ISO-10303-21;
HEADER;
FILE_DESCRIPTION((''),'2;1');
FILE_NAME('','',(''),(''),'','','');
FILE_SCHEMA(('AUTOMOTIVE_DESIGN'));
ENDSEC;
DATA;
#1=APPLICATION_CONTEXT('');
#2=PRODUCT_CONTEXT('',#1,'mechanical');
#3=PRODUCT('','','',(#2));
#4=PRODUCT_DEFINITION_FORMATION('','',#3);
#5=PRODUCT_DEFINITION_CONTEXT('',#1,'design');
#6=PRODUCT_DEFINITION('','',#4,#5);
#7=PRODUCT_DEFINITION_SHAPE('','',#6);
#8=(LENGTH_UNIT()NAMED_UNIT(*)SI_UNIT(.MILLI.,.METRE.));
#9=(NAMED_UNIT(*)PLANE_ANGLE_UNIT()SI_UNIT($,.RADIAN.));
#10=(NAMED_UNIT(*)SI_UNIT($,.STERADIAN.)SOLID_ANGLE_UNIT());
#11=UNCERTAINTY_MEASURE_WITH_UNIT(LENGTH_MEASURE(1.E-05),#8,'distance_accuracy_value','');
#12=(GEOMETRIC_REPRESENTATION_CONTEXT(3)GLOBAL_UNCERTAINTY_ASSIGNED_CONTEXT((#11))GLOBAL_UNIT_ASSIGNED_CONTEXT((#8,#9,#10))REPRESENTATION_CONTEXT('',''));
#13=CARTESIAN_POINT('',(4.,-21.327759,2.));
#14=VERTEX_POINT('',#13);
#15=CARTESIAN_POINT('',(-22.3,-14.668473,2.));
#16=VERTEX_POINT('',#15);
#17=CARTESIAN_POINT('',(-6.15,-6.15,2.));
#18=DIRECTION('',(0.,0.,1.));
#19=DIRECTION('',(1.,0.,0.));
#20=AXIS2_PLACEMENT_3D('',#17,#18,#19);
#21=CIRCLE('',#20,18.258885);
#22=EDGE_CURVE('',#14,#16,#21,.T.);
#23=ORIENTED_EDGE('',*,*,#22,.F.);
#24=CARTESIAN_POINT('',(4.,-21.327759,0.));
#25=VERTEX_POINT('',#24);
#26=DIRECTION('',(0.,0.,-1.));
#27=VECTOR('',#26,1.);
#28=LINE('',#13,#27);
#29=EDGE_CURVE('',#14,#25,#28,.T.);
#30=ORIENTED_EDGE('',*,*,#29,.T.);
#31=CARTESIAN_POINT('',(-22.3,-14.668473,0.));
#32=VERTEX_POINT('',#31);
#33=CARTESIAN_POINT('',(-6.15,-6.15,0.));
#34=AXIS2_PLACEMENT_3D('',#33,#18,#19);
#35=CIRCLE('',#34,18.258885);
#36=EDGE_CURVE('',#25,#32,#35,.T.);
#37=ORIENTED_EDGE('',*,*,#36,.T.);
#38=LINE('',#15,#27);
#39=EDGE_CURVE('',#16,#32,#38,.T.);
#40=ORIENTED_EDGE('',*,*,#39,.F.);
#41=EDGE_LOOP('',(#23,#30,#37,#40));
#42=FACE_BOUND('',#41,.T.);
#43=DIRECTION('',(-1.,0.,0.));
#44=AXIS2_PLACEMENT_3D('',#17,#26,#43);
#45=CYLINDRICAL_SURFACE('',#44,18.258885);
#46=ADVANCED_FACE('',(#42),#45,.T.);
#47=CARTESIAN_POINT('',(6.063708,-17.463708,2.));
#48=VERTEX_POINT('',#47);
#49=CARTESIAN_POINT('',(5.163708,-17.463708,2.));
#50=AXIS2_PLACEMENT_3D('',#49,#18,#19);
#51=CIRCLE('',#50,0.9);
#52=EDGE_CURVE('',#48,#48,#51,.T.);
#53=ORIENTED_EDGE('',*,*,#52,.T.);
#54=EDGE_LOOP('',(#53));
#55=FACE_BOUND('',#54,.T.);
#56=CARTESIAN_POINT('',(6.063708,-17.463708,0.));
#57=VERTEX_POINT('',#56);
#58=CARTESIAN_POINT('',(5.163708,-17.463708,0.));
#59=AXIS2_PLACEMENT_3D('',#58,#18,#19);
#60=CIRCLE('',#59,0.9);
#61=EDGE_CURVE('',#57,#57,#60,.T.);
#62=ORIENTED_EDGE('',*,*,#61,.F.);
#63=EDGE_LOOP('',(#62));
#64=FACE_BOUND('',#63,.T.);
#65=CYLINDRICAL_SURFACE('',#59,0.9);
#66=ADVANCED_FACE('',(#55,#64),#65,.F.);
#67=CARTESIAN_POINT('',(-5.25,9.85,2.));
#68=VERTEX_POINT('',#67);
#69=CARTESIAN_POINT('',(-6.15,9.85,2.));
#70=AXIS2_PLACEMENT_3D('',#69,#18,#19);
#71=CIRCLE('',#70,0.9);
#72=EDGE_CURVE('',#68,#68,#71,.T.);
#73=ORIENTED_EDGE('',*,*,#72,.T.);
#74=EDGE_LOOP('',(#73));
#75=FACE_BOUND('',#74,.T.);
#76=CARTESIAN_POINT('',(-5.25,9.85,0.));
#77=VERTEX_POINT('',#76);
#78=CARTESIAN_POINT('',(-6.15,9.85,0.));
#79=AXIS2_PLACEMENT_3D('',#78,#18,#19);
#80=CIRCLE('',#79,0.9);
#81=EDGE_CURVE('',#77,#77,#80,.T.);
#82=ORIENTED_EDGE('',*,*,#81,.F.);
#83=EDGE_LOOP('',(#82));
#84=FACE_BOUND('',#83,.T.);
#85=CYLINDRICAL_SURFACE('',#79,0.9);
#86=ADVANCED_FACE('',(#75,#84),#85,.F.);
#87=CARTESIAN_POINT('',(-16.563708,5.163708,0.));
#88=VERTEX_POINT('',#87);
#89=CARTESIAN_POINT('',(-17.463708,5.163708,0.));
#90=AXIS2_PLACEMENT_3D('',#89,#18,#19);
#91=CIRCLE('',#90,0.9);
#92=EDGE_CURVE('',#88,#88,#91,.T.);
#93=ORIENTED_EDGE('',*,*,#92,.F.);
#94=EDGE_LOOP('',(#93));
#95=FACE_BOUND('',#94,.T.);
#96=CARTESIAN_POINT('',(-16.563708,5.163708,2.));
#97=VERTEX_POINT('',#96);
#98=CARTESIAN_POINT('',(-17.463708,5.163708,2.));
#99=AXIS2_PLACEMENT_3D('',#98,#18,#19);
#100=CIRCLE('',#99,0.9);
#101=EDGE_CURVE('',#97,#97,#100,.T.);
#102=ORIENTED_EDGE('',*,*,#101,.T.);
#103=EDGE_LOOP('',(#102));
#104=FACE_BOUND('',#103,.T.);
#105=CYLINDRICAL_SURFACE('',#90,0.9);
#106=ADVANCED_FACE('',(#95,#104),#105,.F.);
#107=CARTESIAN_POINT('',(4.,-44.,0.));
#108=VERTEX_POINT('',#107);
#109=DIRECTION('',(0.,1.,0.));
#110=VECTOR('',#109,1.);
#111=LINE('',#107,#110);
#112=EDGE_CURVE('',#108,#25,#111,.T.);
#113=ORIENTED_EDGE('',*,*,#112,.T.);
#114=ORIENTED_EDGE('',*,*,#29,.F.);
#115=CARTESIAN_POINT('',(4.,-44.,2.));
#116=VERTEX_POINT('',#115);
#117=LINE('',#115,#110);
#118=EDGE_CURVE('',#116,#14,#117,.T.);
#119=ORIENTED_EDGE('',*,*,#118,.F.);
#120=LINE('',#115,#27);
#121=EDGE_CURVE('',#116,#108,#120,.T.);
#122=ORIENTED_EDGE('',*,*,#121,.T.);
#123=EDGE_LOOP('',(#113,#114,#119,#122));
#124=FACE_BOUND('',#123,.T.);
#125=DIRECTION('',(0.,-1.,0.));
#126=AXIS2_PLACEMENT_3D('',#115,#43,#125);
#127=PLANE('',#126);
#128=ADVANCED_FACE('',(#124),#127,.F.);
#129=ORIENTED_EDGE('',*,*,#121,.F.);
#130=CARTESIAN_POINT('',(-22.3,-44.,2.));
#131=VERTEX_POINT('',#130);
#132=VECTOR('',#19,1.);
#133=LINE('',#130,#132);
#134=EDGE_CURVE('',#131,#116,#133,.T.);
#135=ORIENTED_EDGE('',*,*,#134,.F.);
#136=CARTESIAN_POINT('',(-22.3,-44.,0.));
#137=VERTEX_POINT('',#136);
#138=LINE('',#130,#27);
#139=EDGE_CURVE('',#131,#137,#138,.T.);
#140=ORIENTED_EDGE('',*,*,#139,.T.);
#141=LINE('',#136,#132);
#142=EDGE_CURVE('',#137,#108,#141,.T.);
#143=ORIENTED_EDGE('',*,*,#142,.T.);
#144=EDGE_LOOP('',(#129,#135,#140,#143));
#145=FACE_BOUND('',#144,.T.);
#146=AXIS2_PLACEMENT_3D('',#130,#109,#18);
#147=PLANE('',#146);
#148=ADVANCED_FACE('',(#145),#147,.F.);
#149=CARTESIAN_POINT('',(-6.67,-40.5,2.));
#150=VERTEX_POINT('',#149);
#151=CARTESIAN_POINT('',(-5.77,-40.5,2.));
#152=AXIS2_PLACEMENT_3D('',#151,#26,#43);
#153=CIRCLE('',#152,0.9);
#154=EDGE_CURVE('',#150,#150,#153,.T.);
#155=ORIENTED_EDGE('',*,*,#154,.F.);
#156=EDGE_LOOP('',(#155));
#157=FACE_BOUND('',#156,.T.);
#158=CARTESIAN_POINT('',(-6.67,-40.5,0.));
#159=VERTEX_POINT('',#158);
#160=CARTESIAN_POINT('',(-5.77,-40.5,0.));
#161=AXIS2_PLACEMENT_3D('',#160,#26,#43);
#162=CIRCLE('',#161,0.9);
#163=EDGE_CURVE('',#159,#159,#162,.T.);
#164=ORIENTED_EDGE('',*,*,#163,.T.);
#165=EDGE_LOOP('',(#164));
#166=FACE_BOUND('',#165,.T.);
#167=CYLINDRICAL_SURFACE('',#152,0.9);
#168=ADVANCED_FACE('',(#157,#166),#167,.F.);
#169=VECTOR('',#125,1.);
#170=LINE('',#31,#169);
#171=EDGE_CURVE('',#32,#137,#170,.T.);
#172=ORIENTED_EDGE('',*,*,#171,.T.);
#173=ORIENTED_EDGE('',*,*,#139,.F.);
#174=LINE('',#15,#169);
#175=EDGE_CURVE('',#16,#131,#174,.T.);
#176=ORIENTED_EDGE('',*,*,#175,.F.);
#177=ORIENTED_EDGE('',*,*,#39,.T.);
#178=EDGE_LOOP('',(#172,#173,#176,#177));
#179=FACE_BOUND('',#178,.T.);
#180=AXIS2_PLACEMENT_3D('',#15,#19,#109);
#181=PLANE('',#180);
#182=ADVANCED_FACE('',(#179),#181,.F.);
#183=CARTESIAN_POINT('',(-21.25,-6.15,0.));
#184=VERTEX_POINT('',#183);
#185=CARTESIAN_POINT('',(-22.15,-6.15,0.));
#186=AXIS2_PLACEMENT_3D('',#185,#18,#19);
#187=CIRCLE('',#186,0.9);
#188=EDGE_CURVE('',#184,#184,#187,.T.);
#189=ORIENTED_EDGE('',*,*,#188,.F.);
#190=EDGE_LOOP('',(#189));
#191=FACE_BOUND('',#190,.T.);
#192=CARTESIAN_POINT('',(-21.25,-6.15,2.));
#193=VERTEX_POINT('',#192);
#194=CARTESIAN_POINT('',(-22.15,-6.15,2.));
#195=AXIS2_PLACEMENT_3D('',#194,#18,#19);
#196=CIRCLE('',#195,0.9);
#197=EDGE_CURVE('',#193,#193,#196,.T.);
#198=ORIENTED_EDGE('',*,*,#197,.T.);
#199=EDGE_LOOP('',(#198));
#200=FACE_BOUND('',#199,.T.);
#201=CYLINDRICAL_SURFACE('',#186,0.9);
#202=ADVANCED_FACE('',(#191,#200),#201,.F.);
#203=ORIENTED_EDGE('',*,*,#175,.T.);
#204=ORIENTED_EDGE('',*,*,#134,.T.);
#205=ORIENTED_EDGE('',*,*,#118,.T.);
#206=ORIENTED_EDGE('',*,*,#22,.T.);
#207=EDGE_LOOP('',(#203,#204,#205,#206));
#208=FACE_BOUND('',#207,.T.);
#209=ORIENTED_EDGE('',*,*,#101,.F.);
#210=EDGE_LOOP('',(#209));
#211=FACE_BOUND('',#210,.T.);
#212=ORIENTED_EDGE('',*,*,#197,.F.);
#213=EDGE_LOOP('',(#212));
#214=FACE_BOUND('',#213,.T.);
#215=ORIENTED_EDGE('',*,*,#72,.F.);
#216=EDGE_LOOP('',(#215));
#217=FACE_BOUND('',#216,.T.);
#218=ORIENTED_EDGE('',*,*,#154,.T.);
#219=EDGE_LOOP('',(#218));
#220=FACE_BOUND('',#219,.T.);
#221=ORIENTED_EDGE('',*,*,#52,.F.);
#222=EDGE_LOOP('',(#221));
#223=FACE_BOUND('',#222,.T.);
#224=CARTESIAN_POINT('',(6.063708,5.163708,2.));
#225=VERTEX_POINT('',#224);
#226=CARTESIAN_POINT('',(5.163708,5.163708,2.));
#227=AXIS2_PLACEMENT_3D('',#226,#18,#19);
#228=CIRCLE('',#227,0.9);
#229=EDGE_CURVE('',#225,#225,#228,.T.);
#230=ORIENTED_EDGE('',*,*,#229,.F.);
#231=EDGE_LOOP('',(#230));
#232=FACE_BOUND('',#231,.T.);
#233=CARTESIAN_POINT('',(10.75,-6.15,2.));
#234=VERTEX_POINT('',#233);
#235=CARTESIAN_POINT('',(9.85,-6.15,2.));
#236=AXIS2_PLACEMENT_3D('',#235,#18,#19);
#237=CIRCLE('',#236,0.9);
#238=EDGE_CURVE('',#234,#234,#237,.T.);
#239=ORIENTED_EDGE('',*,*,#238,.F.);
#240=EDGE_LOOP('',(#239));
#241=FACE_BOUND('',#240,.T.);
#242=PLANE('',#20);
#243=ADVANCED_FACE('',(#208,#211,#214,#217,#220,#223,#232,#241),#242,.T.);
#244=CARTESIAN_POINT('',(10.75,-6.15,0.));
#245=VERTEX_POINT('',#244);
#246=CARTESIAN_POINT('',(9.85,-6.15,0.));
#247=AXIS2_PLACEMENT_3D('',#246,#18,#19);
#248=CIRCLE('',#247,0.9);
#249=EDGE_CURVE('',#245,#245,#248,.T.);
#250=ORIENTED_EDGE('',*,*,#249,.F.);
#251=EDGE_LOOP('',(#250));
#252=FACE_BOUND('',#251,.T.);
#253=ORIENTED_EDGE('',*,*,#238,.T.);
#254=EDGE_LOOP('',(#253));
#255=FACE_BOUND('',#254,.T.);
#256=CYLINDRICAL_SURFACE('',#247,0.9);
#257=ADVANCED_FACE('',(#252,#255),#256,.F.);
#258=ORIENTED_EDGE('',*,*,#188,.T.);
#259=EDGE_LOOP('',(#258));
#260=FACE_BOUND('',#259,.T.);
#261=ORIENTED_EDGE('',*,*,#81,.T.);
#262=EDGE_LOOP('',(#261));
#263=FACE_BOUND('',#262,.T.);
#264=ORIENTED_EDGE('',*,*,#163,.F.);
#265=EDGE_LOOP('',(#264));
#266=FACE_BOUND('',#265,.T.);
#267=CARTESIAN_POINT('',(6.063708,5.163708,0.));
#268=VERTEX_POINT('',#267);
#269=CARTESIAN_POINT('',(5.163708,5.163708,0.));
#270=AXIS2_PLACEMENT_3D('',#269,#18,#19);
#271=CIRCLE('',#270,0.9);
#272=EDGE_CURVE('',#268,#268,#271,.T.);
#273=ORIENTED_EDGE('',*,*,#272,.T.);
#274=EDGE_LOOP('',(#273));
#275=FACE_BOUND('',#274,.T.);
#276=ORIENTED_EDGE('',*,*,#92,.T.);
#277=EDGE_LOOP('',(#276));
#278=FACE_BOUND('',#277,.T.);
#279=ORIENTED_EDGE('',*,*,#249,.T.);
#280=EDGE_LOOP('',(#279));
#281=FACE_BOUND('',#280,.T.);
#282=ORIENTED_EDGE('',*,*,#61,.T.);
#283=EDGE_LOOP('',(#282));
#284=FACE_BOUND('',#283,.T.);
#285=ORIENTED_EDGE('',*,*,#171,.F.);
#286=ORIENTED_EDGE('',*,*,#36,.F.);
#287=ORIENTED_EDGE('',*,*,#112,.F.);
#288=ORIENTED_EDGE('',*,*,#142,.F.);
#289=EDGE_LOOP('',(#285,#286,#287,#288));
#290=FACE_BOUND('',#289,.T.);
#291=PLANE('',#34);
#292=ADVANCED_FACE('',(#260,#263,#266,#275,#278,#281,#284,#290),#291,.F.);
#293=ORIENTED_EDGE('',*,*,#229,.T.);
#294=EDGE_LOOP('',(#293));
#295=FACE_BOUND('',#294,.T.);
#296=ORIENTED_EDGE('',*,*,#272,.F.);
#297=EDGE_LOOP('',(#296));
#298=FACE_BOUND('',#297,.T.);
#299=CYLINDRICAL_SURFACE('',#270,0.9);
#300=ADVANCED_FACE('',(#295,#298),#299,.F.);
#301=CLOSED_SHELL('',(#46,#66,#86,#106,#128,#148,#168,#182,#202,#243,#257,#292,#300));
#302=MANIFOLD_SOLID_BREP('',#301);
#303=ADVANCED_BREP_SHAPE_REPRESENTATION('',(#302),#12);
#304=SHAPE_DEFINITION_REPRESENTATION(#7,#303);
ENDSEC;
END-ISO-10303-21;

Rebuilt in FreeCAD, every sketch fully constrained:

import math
import FreeCAD as App
import Part
import Sketcher

V = App.Vector
Q = App.Units.Quantity

doc = App.newDocument("Part")
params = doc.addObject("Spreadsheet::Sheet", "Params")
for row, (alias, value) in enumerate([
    ("sketch1_width", "26.3 mm"),
    ("pad1_length", "2 mm"),
    ("sketch2_diameter", "1.8 mm"),
    ("sketch3_diameter", "1.8 mm"),
], start=1):
    params.set(f"A{row}", alias)
    params.set(f"B{row}", "=" + value)
    params.setAlias(f"B{row}", alias)

body = doc.addObject("PartDesign::Body", "Body")

# Sketch on XY plane
sketch1 = body.newObject("Sketcher::SketchObject", "Sketch")
sketch1.AttachmentSupport = (doc.getObject("XY_Plane"), [""])
sketch1.MapMode = "FlatFace"
sketch1.addGeometry([
    Part.LineSegment(V(-22, -15, 0), V(-22, -44, 0)),
    Part.LineSegment(V(-22, -44, 0), V(4, -44, 0)),
    Part.LineSegment(V(4, -44, 0), V(4, -21, 0)),
    Part.ArcOfCircle(Part.Circle(V(-6, -6, 0), V(0, 0, 1), 18), math.radians(-56), math.radians(208)),
], False)
sketch1.addConstraint([
    Sketcher.Constraint("Coincident", 0, 2, 1, 1),
    Sketcher.Constraint("Coincident", 1, 2, 2, 1),
    Sketcher.Constraint("Coincident", 2, 2, 3, 1),
    Sketcher.Constraint("Coincident", 3, 2, 0, 1),
    Sketcher.Constraint("Vertical", 0),
    Sketcher.Constraint("Horizontal", 1),
    Sketcher.Constraint("Vertical", 2),
    Sketcher.Constraint("DistanceX", 1, 1, 1, 2, Q("26.3 mm")),
    Sketcher.Constraint("DistanceY", 0, 2, -1, 1, Q("44 mm")),
    Sketcher.Constraint("DistanceX", -1, 1, 1, 2, Q("4 mm")),
    Sketcher.Constraint("DistanceX", 3, 3, -1, 1, Q("6.15 mm")),
    Sketcher.Constraint("DistanceY", 3, 3, -1, 1, Q("6.15 mm")),
    Sketcher.Constraint("Radius", 3, Q("18.258885 mm")),
])
sketch1.setExpression("Constraints[7]", "Params.sketch1_width")
pad1 = body.newObject("PartDesign::Pad", "Pad")
pad1.Profile = sketch1
pad1.setExpression("Length", "Params.pad1_length")

# Sketch on XY plane
sketch2 = body.newObject("Sketcher::SketchObject", "Sketch001")
sketch2.AttachmentSupport = (doc.getObject("XY_Plane"), [""])
sketch2.MapMode = "FlatFace"
sketch2.AttachmentOffset = App.Placement(V(0, 0, 2), App.Rotation())
sketch2.addGeometry([
    Part.Circle(V(9.8, -6.2, 0), V(0, 0, 1), 0.9),  # 0
    Part.Circle(V(5.2, -17.5, 0), V(0, 0, 1), 0.9),  # 1
    Part.Circle(V(-22.1, -6.2, 0), V(0, 0, 1), 0.9),  # 2
    Part.Circle(V(-17.5, 5.2, 0), V(0, 0, 1), 0.9),  # 3
    Part.Circle(V(-6.2, 9.8, 0), V(0, 0, 1), 0.9),  # 4
    Part.Circle(V(5.2, 5.2, 0), V(0, 0, 1), 0.9),  # 5
], False)
sketch2.addConstraint([
    Sketcher.Constraint("Equal", 0, 1),
    Sketcher.Constraint("Equal", 1, 2),
    Sketcher.Constraint("Equal", 2, 3),
    Sketcher.Constraint("Equal", 3, 4),
    Sketcher.Constraint("Equal", 4, 5),
    Sketcher.Constraint("Horizontal", 0, 3, 2, 3),
    Sketcher.Constraint("Horizontal", 3, 3, 5, 3),
    Sketcher.Constraint("Vertical", 1, 3, 5, 3),
    Sketcher.Constraint("Diameter", 0, Q("1.8 mm")),
    Sketcher.Constraint("DistanceX", 2, 3, 0, 3, Q("32 mm")),
    Sketcher.Constraint("DistanceX", 2, 3, 4, 3, Q("16 mm")),
    Sketcher.Constraint("DistanceY", 2, 3, 4, 3, Q("16 mm")),
    Sketcher.Constraint("DistanceX", -1, 1, 0, 3, Q("9.85 mm")),
    Sketcher.Constraint("DistanceY", 0, 3, -1, 1, Q("6.15 mm")),
    Sketcher.Constraint("DistanceX", -1, 1, 1, 3, Q("5.163708 mm")),
    Sketcher.Constraint("DistanceY", 1, 3, -1, 1, Q("17.463708 mm")),
    Sketcher.Constraint("DistanceX", 3, 3, -1, 1, Q("17.463708 mm")),
    Sketcher.Constraint("DistanceY", -1, 1, 3, 3, Q("5.163708 mm")),
])
sketch2.setExpression("Constraints[8]", "Params.sketch2_diameter")
pocket1 = body.newObject("PartDesign::Pocket", "Pocket")
pocket1.Profile = sketch2
pocket1.Type = "ThroughAll"

# Sketch on XY plane
sketch3 = body.newObject("Sketcher::SketchObject", "Sketch002")
sketch3.AttachmentSupport = (doc.getObject("XY_Plane"), [""])
sketch3.MapMode = "FlatFace"
sketch3.addGeometry(Part.Circle(V(-5.8, -40.5, 0), V(0, 0, 1), 0.9), False)
sketch3.addConstraint([
    Sketcher.Constraint("Diameter", 0, Q("1.8 mm")),
    Sketcher.Constraint("DistanceY", 0, 3, -1, 1, Q("40.5 mm")),
    Sketcher.Constraint("DistanceX", 0, 3, -1, 1, Q("5.77 mm")),
])
sketch3.setExpression("Constraints[0]", "Params.sketch3_diameter")
pocket2 = body.newObject("PartDesign::Pocket", "Pocket001")
pocket2.Profile = sketch3
pocket2.Type = "ThroughAll"
pocket2.Reversed = True

doc.recompute()
